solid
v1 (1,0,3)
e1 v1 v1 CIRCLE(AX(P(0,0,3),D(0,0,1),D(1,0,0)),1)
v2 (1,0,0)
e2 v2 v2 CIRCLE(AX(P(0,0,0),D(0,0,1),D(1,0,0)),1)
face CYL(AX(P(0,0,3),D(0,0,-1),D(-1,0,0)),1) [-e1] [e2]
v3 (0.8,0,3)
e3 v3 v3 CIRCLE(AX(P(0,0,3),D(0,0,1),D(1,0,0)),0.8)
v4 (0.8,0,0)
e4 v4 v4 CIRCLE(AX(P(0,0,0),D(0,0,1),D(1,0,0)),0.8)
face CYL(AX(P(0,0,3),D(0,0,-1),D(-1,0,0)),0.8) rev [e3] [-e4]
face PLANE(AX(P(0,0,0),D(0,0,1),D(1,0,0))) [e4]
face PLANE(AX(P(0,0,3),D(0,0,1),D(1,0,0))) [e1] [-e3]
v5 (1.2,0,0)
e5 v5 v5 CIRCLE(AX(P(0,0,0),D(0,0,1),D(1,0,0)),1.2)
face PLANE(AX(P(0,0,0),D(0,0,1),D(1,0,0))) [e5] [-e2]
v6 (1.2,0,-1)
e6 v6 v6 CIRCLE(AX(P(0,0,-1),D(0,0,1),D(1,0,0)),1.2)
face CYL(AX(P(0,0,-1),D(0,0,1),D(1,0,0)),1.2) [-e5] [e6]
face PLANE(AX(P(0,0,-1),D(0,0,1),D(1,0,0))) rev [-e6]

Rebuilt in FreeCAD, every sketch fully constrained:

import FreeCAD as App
import Part
import Sketcher
from FreeCAD import Vector

doc = App.newDocument("Part")
params = doc.addObject("Spreadsheet::Sheet", "Params")
for row, (alias, value) in enumerate([
    ("sketch1_diameter", "2 mm"),
    ("sketch1_diameter2", "1.6 mm"),
    ("pad1_length", "3 mm"),
    ("sketch2_diameter", "2.4 mm"),
    ("pad2_length", "1 mm"),
], start=1):
    params.set(f"A{row}", alias)
    params.set(f"B{row}", "=" + value)
    params.setAlias(f"B{row}", alias)

body = doc.addObject("PartDesign::Body", "Body")

# Sketch on XY plane
sketch1 = body.newObject("Sketcher::SketchObject", "Sketch")
sketch1.AttachmentSupport = (doc.getObject("XY_Plane"), [""])
sketch1.MapMode = "FlatFace"
sketch1.addGeometry(Part.Circle(Vector(0, 0, 0), Vector(0, 0, 1), 1), False)
sketch1.addGeometry(Part.Circle(Vector(0, 0, 0), Vector(0, 0, 1), 0.8), False)
sketch1.addConstraint(Sketcher.Constraint("Coincident", 0, 3, -1, 1))
sketch1.addConstraint(Sketcher.Constraint("Coincident", 1, 3, -1, 1))
sketch1.addConstraint(Sketcher.Constraint("Diameter", 0, 2.0))
sketch1.addConstraint(Sketcher.Constraint("Diameter", 1, 1.6))
sketch1.setExpression("Constraints[2]", "Params.sketch1_diameter")
sketch1.setExpression("Constraints[3]", "Params.sketch1_diameter2")
pad1 = body.newObject("PartDesign::Pad", "Pad")
pad1.Profile = sketch1
pad1.setExpression("Length", "Params.pad1_length")

# Sketch on XY plane
sketch2 = body.newObject("Sketcher::SketchObject", "Sketch001")
sketch2.AttachmentSupport = (doc.getObject("XY_Plane"), [""])
sketch2.MapMode = "FlatFace"
sketch2.addGeometry(Part.Circle(Vector(0, 0, 0), Vector(0, 0, 1), 1.2), False)
sketch2.addConstraint(Sketcher.Constraint("Coincident", 0, 3, -1, 1))
sketch2.addConstraint(Sketcher.Constraint("Diameter", 0, 2.4))
sketch2.setExpression("Constraints[1]", "Params.sketch2_diameter")
pad2 = body.newObject("PartDesign::Pad", "Pad001")
pad2.Profile = sketch2
pad2.setExpression("Length", "Params.pad2_length")
pad2.Reversed = True

doc.recompute()
